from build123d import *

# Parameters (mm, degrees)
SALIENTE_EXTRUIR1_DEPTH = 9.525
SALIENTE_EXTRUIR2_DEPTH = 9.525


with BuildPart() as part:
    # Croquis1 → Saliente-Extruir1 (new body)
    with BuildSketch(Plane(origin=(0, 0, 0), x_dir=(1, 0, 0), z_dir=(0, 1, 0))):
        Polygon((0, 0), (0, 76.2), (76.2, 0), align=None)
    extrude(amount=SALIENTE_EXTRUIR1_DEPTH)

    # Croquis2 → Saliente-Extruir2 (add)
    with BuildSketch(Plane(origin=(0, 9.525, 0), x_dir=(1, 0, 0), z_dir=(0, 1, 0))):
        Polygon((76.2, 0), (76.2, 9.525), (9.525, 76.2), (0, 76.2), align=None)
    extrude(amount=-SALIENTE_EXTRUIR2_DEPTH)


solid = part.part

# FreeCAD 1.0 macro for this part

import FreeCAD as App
import Part
import Sketcher

V = App.Vector
Q = App.Units.Quantity

doc = App.newDocument("Part")
body = doc.addObject("PartDesign::Body", "Body")

# Sketch on XZ plane
sketch1 = doc.addObject("Sketcher::SketchObject", "Sketch")
body.addObject(sketch1)
sketch1.AttachmentSupport = (doc.XZ_Plane, [""])
sketch1.MapMode = "FlatFace"
sketch1.addGeometry(Part.LineSegment(V(0, -76, 0), V(0, 0, 0)), False)
sketch1.addGeometry(Part.LineSegment(V(0, 0, 0), V(76, 0, 0)), False)
sketch1.addGeometry(Part.LineSegment(V(76, 0, 0), V(0, -76, 0)), False)
sketch1.addConstraint(Sketcher.Constraint("Coincident", 0, 2, 1, 1))
sketch1.addConstraint(Sketcher.Constraint("Coincident", 1, 2, 2, 1))
sketch1.addConstraint(Sketcher.Constraint("Coincident", 2, 2, 0, 1))
sketch1.addConstraint(Sketcher.Constraint("Vertical", 0))
sketch1.addConstraint(Sketcher.Constraint("Horizontal", 1))
sketch1.addConstraint(Sketcher.Constraint("Coincident", 0, 2, -1, 1))
sketch1.addConstraint(Sketcher.Constraint("Equal", 1, 0))
sketch1.addConstraint(Sketcher.Constraint("DistanceX", 1, 1, 1, 2, Q("3 in")))
pad1 = doc.addObject("PartDesign::Pad", "Pad")
body.addObject(pad1)
pad1.Profile = sketch1
pad1.Length = Q("0.375 in")
pad1.Reversed = True

# Sketch on XZ plane
sketch2 = doc.addObject("Sketcher::SketchObject", "Sketch001")
body.addObject(sketch2)
sketch2.AttachmentSupport = (doc.XZ_Plane, [""])
sketch2.MapMode = "FlatFace"
sketch2.AttachmentOffset = App.Placement(V(0, 0, -0.375 * 25.4), App.Rotation())
sketch2.addGeometry(Part.LineSegment(V(76, 0, 0), V(76, -10, 0)), False)
sketch2.addGeometry(Part.LineSegment(V(76, -10, 0), V(10, -76, 0)), False)
sketch2.addGeometry(Part.LineSegment(V(10, -76, 0), V(0, -76, 0)), False)
sketch2.addGeometry(Part.LineSegment(V(0, -76, 0), V(76, 0, 0)), False)
sketch2.addConstraint(Sketcher.Constraint("Coincident", 0, 2, 1, 1))
sketch2.addConstraint(Sketcher.Constraint("Coincident", 1, 2, 2, 1))
sketch2.addConstraint(Sketcher.Constraint("Coincident", 2, 2, 3, 1))
sketch2.addConstraint(Sketcher.Constraint("Coincident", 3, 2, 0, 1))
sketch2.addConstraint(Sketcher.Constraint("Vertical", 0))
sketch2.addConstraint(Sketcher.Constraint("Horizontal", 2))
sketch2.addConstraint(Sketcher.Constraint("PointOnObject", 2, 2, -2))
sketch2.addConstraint(Sketcher.Constraint("PointOnObject", 3, 2, -1))
sketch2.addConstraint(Sketcher.Constraint("Parallel", 1, 3))
sketch2.addConstraint(Sketcher.Constraint("Equal", 2, 0))
sketch2.addConstraint(Sketcher.Constraint("DistanceX", -1, 1, 0, 2, Q("3 in")))
sketch2.addConstraint(Sketcher.Constraint("DistanceX", 2, 2, 2, 1, Q("0.375 in")))
pad2 = doc.addObject("PartDesign::Pad", "Pad001")
body.addObject(pad2)
pad2.Profile = sketch2
pad2.Length = Q("0.375 in")

doc.recompute()
